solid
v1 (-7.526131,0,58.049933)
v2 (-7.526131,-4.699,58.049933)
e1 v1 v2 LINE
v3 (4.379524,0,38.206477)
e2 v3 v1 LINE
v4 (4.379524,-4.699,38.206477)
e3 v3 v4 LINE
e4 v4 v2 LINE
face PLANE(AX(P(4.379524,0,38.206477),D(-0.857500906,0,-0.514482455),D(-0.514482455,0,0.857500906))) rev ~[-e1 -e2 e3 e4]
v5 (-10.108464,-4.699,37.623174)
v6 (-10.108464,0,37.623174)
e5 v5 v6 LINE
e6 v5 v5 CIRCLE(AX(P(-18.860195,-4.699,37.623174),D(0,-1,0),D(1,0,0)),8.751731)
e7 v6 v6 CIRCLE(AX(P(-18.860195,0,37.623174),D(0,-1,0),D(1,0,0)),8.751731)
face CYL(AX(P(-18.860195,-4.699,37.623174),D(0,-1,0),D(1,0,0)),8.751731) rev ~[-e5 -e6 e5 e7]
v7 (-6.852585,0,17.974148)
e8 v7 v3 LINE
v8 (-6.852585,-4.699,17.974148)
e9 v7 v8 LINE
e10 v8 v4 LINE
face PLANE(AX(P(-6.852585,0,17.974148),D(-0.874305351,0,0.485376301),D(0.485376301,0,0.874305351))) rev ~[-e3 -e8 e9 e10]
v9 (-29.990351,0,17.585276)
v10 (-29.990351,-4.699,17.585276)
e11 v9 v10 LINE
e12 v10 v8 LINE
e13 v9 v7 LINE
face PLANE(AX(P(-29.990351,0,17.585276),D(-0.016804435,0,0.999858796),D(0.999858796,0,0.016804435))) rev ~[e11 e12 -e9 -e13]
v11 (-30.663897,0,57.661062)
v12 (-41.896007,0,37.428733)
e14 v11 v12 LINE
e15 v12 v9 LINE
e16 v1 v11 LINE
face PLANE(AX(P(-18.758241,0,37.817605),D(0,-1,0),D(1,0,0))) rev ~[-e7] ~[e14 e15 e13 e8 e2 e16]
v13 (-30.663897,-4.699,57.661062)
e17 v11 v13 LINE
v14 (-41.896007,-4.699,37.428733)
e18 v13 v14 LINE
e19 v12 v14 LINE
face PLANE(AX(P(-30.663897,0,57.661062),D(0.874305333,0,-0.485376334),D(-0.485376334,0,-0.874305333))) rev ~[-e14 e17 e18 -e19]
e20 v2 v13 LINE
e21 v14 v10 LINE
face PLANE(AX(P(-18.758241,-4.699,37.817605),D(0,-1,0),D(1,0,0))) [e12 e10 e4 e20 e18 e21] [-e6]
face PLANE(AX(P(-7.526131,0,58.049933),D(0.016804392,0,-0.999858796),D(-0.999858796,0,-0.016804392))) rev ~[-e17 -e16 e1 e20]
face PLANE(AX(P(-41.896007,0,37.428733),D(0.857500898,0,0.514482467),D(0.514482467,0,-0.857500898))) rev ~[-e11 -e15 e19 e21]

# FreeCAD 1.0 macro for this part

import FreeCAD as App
import Part
import Sketcher
from FreeCAD import Vector
Q = App.Units.Quantity

doc = App.newDocument("Part")
body = doc.addObject("PartDesign::Body", "Body")

sketch1 = body.newObject("Sketcher::SketchObject", "Sketch")
sketch1.AttachmentSupport = (doc.getObject("XZ_Plane"), [""])
sketch1.MapMode = "FlatFace"
sketch1.addGeometry([
    Part.LineSegment(Vector(-7, 18, 0), Vector(4, 38, 0)),
    Part.LineSegment(Vector(4, 38, 0), Vector(-8, 58, 0)),
    Part.LineSegment(Vector(-8, 58, 0), Vector(-31, 58, 0)),
    Part.LineSegment(Vector(-31, 58, 0), Vector(-42, 37, 0)),
    Part.LineSegment(Vector(-42, 37, 0), Vector(-30, 18, 0)),
    Part.LineSegment(Vector(-30, 18, 0), Vector(-7, 18, 0)),
], False)
sketch1.addConstraint([
    Sketcher.Constraint("Coincident", 0, 2, 1, 1),
    Sketcher.Constraint("Coincident", 1, 2, 2, 1),
    Sketcher.Constraint("Coincident", 2, 2, 3, 1),
    Sketcher.Constraint("Coincident", 3, 2, 4, 1),
    Sketcher.Constraint("Coincident", 4, 2, 5, 1),
    Sketcher.Constraint("Coincident", 5, 2, 0, 1),
    Sketcher.Constraint("Parallel", 0, 3),
    Sketcher.Constraint("Parallel", 1, 4),
    Sketcher.Constraint("Parallel", 2, 5),
    Sketcher.Constraint("Equal", 0, 1),
    Sketcher.Constraint("Equal", 1, 2),
    Sketcher.Constraint("Equal", 2, 3),
    Sketcher.Constraint("DistanceY", 3, 2, 1, 2, Q("20.6212 mm")),
    Sketcher.Constraint("DistanceX", 1, 2, -1, 1, Q("7.526131 mm")),
    Sketcher.Constraint("DistanceX", 4, 2, -1, 1, Q("29.990351 mm")),
    Sketcher.Constraint("DistanceY", 2, 2, 1, 2, Q("0.388871 mm")),
    Sketcher.Constraint("DistanceX", 2, 2, 0, 2, Q("35.043421 mm")),
    Sketcher.Constraint("DistanceY", -1, 1, 0, 2, Q("38.206477 mm")),
])
pad1 = body.newObject("PartDesign::Pad", "Pad")
pad1.Profile = sketch1
pad1.Length = Q("0.185 in")

sketch2 = body.newObject("Sketcher::SketchObject", "Sketch001")
sketch2.AttachmentSupport = (doc.getObject("XZ_Plane"), [""])
sketch2.MapMode = "FlatFace"
sketch2.AttachmentOffset = App.Placement(Vector(0, 0, 0.185 * 25.4), App.Rotation())
sketch2.addGeometry(Part.Circle(Vector(-19, 38, 0), Vector(0, 0, 1), 9), False)
sketch2.addConstraint([
    Sketcher.Constraint("Diameter", 0, Q("17.503462 mm")),
    Sketcher.Constraint("DistanceX", 0, 3, -1, 1, Q("18.860195 mm")),
    Sketcher.Constraint("DistanceY", -1, 1, 0, 3, Q("37.623174 mm")),
])
pocket1 = body.newObject("PartDesign::Pocket", "Pocket")
pocket1.Profile = sketch2
pocket1.Length = Q("2 in")

doc.recompute()
